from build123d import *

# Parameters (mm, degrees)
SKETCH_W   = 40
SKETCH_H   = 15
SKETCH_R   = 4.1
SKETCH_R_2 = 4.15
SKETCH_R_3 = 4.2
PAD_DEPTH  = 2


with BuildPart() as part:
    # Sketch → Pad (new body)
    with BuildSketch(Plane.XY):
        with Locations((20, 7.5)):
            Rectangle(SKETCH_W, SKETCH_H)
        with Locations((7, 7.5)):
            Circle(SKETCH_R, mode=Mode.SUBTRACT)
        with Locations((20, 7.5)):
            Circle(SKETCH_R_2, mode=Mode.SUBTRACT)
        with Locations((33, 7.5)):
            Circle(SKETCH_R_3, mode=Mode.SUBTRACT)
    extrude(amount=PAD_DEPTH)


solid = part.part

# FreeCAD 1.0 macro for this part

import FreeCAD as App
import Part
import Sketcher

doc = App.newDocument("Part")
body = doc.addObject("PartDesign::Body", "Body")

sketch1 = doc.addObject("Sketcher::SketchObject", "Sketch")
body.addObject(sketch1)
sketch1.AttachmentSupport = (doc.XY_Plane, [""])
sketch1.MapMode = "FlatFace"
sketch1.addGeometry([
    Part.LineSegment(App.Vector(0, 15, 0), App.Vector(0, 0, 0)),
    Part.LineSegment(App.Vector(0, 0, 0), App.Vector(40, 0, 0)),
    Part.LineSegment(App.Vector(40, 0, 0), App.Vector(40, 15, 0)),
    Part.LineSegment(App.Vector(40, 15, 0), App.Vector(0, 15, 0)),
    Part.Circle(App.Vector(7, 7.5, 0), App.Vector(0, 0, 1), 4.1),
    Part.Circle(App.Vector(20, 7.5, 0), App.Vector(0, 0, 1), 4.2),
    Part.Circle(App.Vector(33, 7.5, 0), App.Vector(0, 0, 1), 4.2),
], False)
sketch1.addConstraint([
    Sketcher.Constraint("Coincident", 0, 2, 1, 1),
    Sketcher.Constraint("Coincident", 1, 2, 2, 1),
    Sketcher.Constraint("Coincident", 2, 2, 3, 1),
    Sketcher.Constraint("Coincident", 3, 2, 0, 1),
    Sketcher.Constraint("Vertical", 0),
    Sketcher.Constraint("Horizontal", 1),
    Sketcher.Constraint("Vertical", 2),
    Sketcher.Constraint("Horizontal", 3),
    Sketcher.Constraint("Coincident", 0, 2, -1, 1),
    Sketcher.Constraint("Horizontal", 4, 3, 5, 3),
    Sketcher.Constraint("Horizontal", 5, 3, 6, 3),
    Sketcher.Constraint("Diameter", 4, 8.2),
    Sketcher.Constraint("Diameter", 5, 8.3),
    Sketcher.Constraint("Diameter", 6, 8.4),
    Sketcher.Constraint("DistanceX", 1, 1, 1, 2, 40.0),
    Sketcher.Constraint("DistanceY", 0, 2, 0, 1, 15.0),
    Sketcher.Constraint("DistanceX", -1, 1, 4, 3, 7.0),
    Sketcher.Constraint("DistanceX", -1, 1, 5, 3, 20.0),
    Sketcher.Constraint("DistanceX", -1, 1, 6, 3, 33.0),
    Sketcher.Constraint("DistanceY", -1, 1, 4, 3, 7.5),
])
pad1 = doc.addObject("PartDesign::Pad", "Pad")
body.addObject(pad1)
pad1.Profile = sketch1
pad1.Length = 2

doc.recompute()
